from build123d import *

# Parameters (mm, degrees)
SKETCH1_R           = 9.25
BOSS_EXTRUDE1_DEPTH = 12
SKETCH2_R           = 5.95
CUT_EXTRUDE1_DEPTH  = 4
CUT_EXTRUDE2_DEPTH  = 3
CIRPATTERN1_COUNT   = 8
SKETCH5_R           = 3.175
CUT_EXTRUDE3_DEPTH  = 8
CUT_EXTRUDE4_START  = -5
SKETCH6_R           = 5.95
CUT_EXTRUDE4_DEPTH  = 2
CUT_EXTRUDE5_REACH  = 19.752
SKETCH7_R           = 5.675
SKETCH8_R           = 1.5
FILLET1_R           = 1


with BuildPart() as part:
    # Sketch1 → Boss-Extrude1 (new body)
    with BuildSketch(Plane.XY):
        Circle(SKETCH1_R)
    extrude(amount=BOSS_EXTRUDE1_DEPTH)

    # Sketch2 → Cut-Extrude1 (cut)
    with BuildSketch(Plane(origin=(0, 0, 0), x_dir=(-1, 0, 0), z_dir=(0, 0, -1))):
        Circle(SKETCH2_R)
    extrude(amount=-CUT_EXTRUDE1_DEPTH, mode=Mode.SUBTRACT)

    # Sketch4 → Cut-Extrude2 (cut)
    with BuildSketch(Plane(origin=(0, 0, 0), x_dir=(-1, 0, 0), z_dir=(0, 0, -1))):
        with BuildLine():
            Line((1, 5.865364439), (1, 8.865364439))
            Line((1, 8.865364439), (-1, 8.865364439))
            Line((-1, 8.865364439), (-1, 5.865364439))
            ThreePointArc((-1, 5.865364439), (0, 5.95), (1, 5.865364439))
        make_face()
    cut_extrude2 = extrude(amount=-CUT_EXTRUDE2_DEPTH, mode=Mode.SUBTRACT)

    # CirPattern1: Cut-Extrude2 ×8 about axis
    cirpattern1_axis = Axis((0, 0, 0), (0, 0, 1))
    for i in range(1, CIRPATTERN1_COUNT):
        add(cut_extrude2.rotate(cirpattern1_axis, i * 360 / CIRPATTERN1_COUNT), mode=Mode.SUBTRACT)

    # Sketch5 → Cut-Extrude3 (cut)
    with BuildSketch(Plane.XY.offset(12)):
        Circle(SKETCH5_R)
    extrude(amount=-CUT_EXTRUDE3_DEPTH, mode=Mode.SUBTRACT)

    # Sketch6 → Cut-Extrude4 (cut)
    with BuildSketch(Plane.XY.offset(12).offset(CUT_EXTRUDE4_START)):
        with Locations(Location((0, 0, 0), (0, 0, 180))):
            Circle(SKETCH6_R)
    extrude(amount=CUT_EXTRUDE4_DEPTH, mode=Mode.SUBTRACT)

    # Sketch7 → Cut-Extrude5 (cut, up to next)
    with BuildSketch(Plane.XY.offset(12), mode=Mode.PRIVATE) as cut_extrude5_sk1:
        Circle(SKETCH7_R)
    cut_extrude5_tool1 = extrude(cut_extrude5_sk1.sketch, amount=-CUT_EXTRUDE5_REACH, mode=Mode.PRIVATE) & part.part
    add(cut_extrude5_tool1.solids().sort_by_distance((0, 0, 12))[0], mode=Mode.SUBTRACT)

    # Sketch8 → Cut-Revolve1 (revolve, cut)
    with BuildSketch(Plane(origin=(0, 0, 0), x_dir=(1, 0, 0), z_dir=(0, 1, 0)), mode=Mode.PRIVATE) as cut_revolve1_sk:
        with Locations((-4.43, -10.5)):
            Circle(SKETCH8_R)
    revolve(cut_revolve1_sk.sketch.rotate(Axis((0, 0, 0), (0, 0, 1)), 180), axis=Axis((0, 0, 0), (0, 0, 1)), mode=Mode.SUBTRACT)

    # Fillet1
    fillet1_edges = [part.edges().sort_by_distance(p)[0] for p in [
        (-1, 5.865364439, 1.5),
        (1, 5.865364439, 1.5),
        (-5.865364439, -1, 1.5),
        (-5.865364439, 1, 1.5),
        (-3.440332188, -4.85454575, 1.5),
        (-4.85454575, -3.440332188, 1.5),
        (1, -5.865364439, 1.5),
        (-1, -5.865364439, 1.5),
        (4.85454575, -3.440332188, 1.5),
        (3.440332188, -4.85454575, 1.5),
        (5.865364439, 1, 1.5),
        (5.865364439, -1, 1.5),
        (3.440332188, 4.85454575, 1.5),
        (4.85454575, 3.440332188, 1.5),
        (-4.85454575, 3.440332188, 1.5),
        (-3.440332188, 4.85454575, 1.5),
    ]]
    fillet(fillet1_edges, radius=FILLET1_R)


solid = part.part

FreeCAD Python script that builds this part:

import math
import FreeCAD as App
import Part
import Sketcher

V = App.Vector
Q = App.Units.Quantity


def edges_at(feature, points):
    """Names of the edges that pass closest to the given points."""
    edges = feature.Shape.Edges
    near = lambda p: min(range(len(edges)), key=lambda i: edges[i].distToShape(Part.Vertex(*p))[0])
    return sorted({f"Edge{near(p) + 1}" for p in points})

doc = App.newDocument("Part")
params = doc.addObject("Spreadsheet::Sheet", "Params")
for row, (alias, value) in enumerate([
    ("sketch1_diameter", "18.5 mm"),
    ("pad1_length", "12 mm"),
    ("sketch2_diameter", "11.9 mm"),
    ("pocket1_length", "4 mm"),
    ("sketch3_width", "2 mm"),
    ("sketch3_height", "3 mm"),
    ("sketch3_radius", "5.95 mm"),
    ("pocket2_length", "3 mm"),
    ("sketch4_diameter", "6.35 mm"),
    ("pocket3_length", "8 mm"),
    ("sketch5_diameter", "11.9 mm"),
    ("pocket4_length", "2 mm"),
    ("sketch6_diameter", "11.35 mm"),
    ("pocket5_length", "3 mm"),
    ("sketch7_diameter", "3 mm"),
    ("groove_angle", "360 deg"),
    ("fillet_radius", "1 mm"),
], start=1):
    params.set(f"A{row}", alias)
    params.set(f"B{row}", "=" + value)
    params.setAlias(f"B{row}", alias)

body = doc.addObject("PartDesign::Body", "Body")

# Sketch on XY plane
sketch1 = body.newObject("Sketcher::SketchObject", "Sketch")
sketch1.AttachmentSupport = (doc.getObject("XY_Plane"), [""])
sketch1.MapMode = "FlatFace"
sketch1.addGeometry(Part.Circle(V(0, 0, 0), V(0, 0, 1), 9), False)
sketch1.addConstraint(Sketcher.Constraint("Coincident", 0, 3, -1, 1))
sketch1.addConstraint(Sketcher.Constraint("Diameter", 0, Q("18.5 mm")))
sketch1.setExpression("Constraints[1]", "Params.sketch1_diameter")
pad1 = body.newObject("PartDesign::Pad", "Pad")
pad1.Profile = sketch1
pad1.setExpression("Length", "Params.pad1_length")

# Sketch on XY plane
sketch2 = body.newObject("Sketcher::SketchObject", "Sketch001")
sketch2.AttachmentSupport = (doc.getObject("XY_Plane"), [""])
sketch2.MapMode = "FlatFace"
sketch2.addGeometry(Part.Circle(V(0, 0, 0), V(0, 0, 1), 6), False)
sketch2.addConstraint(Sketcher.Constraint("Coincident", 0, 3, -1, 1))
sketch2.addConstraint(Sketcher.Constraint("Diameter", 0, Q("11.9 mm")))
sketch2.setExpression("Constraints[1]", "Params.sketch2_diameter")
pocket1 = body.newObject("PartDesign::Pocket", "Pocket")
pocket1.Profile = sketch2
pocket1.setExpression("Length", "Params.pocket1_length")
pocket1.Reversed = True

# Sketch on XY plane
sketch3 = body.newObject("Sketcher::SketchObject", "Sketch002")
sketch3.AttachmentSupport = (doc.getObject("XY_Plane"), [""])
sketch3.MapMode = "FlatFace"
sketch3.addGeometry(Part.LineSegment(V(-1, 5.9, 0), V(-1, 8.9, 0)), False)
sketch3.addGeometry(Part.LineSegment(V(-1, 8.9, 0), V(1, 8.9, 0)), False)
sketch3.addGeometry(Part.LineSegment(V(1, 8.9, 0), V(1, 5.9, 0)), False)
sketch3.addGeometry(Part.ArcOfCircle(Part.Circle(V(0, 0, 0), V(0, 0, 1), 6), math.radians(80.32), math.radians(99.68)), False)
sketch3.addConstraint(Sketcher.Constraint("Coincident", 0, 2, 1, 1))
sketch3.addConstraint(Sketcher.Constraint("Coincident", 1, 2, 2, 1))
sketch3.addConstraint(Sketcher.Constraint("Coincident", 2, 2, 3, 1))
sketch3.addConstraint(Sketcher.Constraint("Coincident", 3, 2, 0, 1))
sketch3.addConstraint(Sketcher.Constraint("Vertical", 0))
sketch3.addConstraint(Sketcher.Constraint("Horizontal", 1))
sketch3.addConstraint(Sketcher.Constraint("Vertical", 2))
sketch3.addConstraint(Sketcher.Constraint("Coincident", 3, 3, -1, 1))
sketch3.addConstraint(Sketcher.Constraint("Horizontal", 2, 2, 3, 2))
sketch3.addConstraint(Sketcher.Constraint("DistanceX", 1, 1, 1, 2, Q("2 mm")))
sketch3.addConstraint(Sketcher.Constraint("DistanceY", 0, 1, 0, 2, Q("3 mm")))
sketch3.addConstraint(Sketcher.Constraint("Radius", 3, Q("5.95 mm")))
sketch3.setExpression("Constraints[9]", "Params.sketch3_width")
sketch3.setExpression("Constraints[10]", "Params.sketch3_height")
sketch3.setExpression("Constraints[11]", "Params.sketch3_radius")
pocket2 = body.newObject("PartDesign::Pocket", "Pocket001")
pocket2.Profile = sketch3
pocket2.setExpression("Length", "Params.pocket2_length")
pocket2.Reversed = True
doc.recompute()

polarpattern = body.newObject("PartDesign::PolarPattern", "PolarPattern")
polarpattern.Originals = [pocket2]
polarpattern.Axis = (doc.getObject("Z_Axis"), [""])
polarpattern.Angle = 360
polarpattern.Occurrences = 8
body.Tip = polarpattern

# Sketch on XY plane
sketch4 = body.newObject("Sketcher::SketchObject", "Sketch003")
sketch4.AttachmentSupport = (doc.getObject("XY_Plane"), [""])
sketch4.MapMode = "FlatFace"
sketch4.AttachmentOffset = App.Placement(V(0, 0, 12), App.Rotation())
sketch4.addGeometry(Part.Circle(V(0, 0, 0), V(0, 0, 1), 3.2), False)
sketch4.addConstraint(Sketcher.Constraint("Coincident", 0, 3, -1, 1))
sketch4.addConstraint(Sketcher.Constraint("Diameter", 0, Q("6.35 mm")))
sketch4.setExpression("Constraints[1]", "Params.sketch4_diameter")
pocket3 = body.newObject("PartDesign::Pocket", "Pocket002")
pocket3.Profile = sketch4
pocket3.setExpression("Length", "Params.pocket3_length")

# Sketch on XY plane
sketch5 = body.newObject("Sketcher::SketchObject", "Sketch004")
sketch5.AttachmentSupport = (doc.getObject("XY_Plane"), [""])
sketch5.MapMode = "FlatFace"
sketch5.AttachmentOffset = App.Placement(V(0, 0, 7), App.Rotation())
sketch5.addGeometry(Part.Circle(V(0, 0, 0), V(0, 0, 1), 6), False)
sketch5.addConstraint(Sketcher.Constraint("Coincident", 0, 3, -1, 1))
sketch5.addConstraint(Sketcher.Constraint("Diameter", 0, Q("11.9 mm")))
sketch5.setExpression("Constraints[1]", "Params.sketch5_diameter")
pocket4 = body.newObject("PartDesign::Pocket", "Pocket003")
pocket4.Profile = sketch5
pocket4.setExpression("Length", "Params.pocket4_length")
pocket4.Reversed = True

# Sketch on XY plane
sketch6 = body.newObject("Sketcher::SketchObject", "Sketch005")
sketch6.AttachmentSupport = (doc.getObject("XY_Plane"), [""])
sketch6.MapMode = "FlatFace"
sketch6.AttachmentOffset = App.Placement(V(0, 0, 12), App.Rotation())
sketch6.addGeometry(Part.Circle(V(0, 0, 0), V(0, 0, 1), 6), False)
sketch6.addConstraint(Sketcher.Constraint("Coincident", 0, 3, -1, 1))
sketch6.addConstraint(Sketcher.Constraint("Diameter", 0, Q("11.35 mm")))
sketch6.setExpression("Constraints[1]", "Params.sketch6_diameter")
pocket5 = body.newObject("PartDesign::Pocket", "Pocket004")
pocket5.Profile = sketch6
pocket5.setExpression("Length", "Params.pocket5_length")

# Sketch on XZ plane
sketch7 = body.newObject("Sketcher::SketchObject", "Sketch006")
sketch7.AttachmentSupport = (doc.getObject("XZ_Plane"), [""])
sketch7.MapMode = "FlatFace"
sketch7.addGeometry(Part.Circle(V(-4.4, 10.5, 0), V(0, 0, 1), 1.5), False)
sketch7.addConstraint(Sketcher.Constraint("Diameter", 0, Q("3 mm")))
sketch7.addConstraint(Sketcher.Constraint("DistanceY", -1, 1, 0, 3, Q("10.5 mm")))
sketch7.addConstraint(Sketcher.Constraint("DistanceX", 0, 3, -1, 1, Q("4.43 mm")))
sketch7.setExpression("Constraints[0]", "Params.sketch7_diameter")
groove = body.newObject("PartDesign::Groove", "Groove")
groove.Profile = sketch7
groove.ReferenceAxis = (sketch7, ["V_Axis"])
groove.setExpression("Angle", "Params.groove_angle")
doc.recompute()

fillet = body.newObject("PartDesign::Fillet", "Fillet")
fillet.Base = (groove, edges_at(groove, [
    (-1, 5.865, 1.5),
    (1, 5.865, 1.5),
    (-5.865, -1, 1.5),
    (-5.865, 1, 1.5),
    (-3.44, -4.855, 1.5),
    (-4.855, -3.44, 1.5),
    (1, -5.865, 1.5),
    (-1, -5.865, 1.5),
    (4.855, -3.44, 1.5),
    (3.44, -4.855, 1.5),
    (5.865, 1, 1.5),
    (5.865, -1, 1.5),
    (3.44, 4.855, 1.5),
    (4.855, 3.44, 1.5),
    (-4.855, 3.44, 1.5),
    (-3.44, 4.855, 1.5),
]))
fillet.setExpression("Radius", "Params.fillet_radius")

doc.recompute()
